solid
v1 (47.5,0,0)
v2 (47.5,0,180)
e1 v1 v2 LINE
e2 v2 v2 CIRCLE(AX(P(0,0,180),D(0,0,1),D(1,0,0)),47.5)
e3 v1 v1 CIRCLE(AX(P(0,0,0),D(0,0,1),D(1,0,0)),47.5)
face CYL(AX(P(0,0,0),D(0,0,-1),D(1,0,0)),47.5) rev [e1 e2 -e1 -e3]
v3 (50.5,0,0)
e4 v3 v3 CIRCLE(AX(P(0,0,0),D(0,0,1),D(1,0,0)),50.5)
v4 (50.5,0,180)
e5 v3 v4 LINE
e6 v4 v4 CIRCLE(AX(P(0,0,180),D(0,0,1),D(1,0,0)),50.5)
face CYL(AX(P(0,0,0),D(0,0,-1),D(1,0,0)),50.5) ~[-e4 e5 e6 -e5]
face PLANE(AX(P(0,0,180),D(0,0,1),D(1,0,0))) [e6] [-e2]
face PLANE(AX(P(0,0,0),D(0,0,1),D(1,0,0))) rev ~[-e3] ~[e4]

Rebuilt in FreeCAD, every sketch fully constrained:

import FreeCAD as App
import Part
import Sketcher
Q = App.Units.Quantity

doc = App.newDocument("Part")
params = doc.addObject("Spreadsheet::Sheet", "Params")
for row, (alias, value) in enumerate([
    ("sketch1_diameter", "101 mm"),
    ("sketch1_diameter2", "95 mm"),
    ("pad1_length", "180 mm"),
], start=1):
    params.set(f"A{row}", alias)
    params.set(f"B{row}", "=" + value)
    params.setAlias(f"B{row}", alias)

body = doc.addObject("PartDesign::Body", "Body")

# Sketch on XY plane
sketch1 = doc.addObject("Sketcher::SketchObject", "Sketch")
body.addObject(sketch1)
sketch1.AttachmentSupport = (doc.XY_Plane, [""])
sketch1.MapMode = "FlatFace"
sketch1.addGeometry([
    Part.Circle(App.Vector(0, 0, 0), App.Vector(0, 0, 1), 50.5),
    Part.Circle(App.Vector(0, 0, 0), App.Vector(0, 0, 1), 47.5),
], False)
sketch1.addConstraint([
    Sketcher.Constraint("Coincident", 0, 3, -1, 1),
    Sketcher.Constraint("Coincident", 1, 3, -1, 1),
    Sketcher.Constraint("Diameter", 0, Q("101 mm")),
    Sketcher.Constraint("Diameter", 1, Q("95 mm")),
])
sketch1.setExpression("Constraints[2]", "Params.sketch1_diameter")
sketch1.setExpression("Constraints[3]", "Params.sketch1_diameter2")
pad1 = doc.addObject("PartDesign::Pad", "Pad")
body.addObject(pad1)
pad1.Profile = sketch1
pad1.setExpression("Length", "Params.pad1_length")

doc.recompute()
